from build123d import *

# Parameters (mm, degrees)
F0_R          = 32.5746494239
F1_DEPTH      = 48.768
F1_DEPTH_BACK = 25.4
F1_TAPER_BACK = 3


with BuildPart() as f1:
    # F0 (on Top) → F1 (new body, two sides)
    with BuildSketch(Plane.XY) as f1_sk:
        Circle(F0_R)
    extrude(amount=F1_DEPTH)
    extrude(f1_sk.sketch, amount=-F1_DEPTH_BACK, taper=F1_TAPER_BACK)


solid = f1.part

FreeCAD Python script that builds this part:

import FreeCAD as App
import Part
import Sketcher
Q = App.Units.Quantity

doc = App.newDocument("Part")
body = doc.addObject("PartDesign::Body", "Body")

# Sketch on XY plane
sketch1 = body.newObject("Sketcher::SketchObject", "Sketch")
sketch1.AttachmentSupport = (doc.getObject("XY_Plane"), [""])
sketch1.MapMode = "FlatFace"
sketch1.addGeometry(Part.Circle(App.Vector(0, 0, 0), App.Vector(0, 0, 1), 33), False)
sketch1.addConstraint([
    Sketcher.Constraint("Coincident", 0, 3, -1, 1),
    Sketcher.Constraint("Diameter", 0, Q("65.149299 mm")),
])
pad1 = body.newObject("PartDesign::Pad", "Pad")
pad1.Profile = sketch1
pad1.Length = Q("1.92 in")
pad2 = body.newObject("PartDesign::Pad", "Pad001")
pad2.Profile = sketch1
pad2.Length = Q("1 in")
pad2.Reversed = True
pad2.TaperAngle = -3

doc.recompute()
